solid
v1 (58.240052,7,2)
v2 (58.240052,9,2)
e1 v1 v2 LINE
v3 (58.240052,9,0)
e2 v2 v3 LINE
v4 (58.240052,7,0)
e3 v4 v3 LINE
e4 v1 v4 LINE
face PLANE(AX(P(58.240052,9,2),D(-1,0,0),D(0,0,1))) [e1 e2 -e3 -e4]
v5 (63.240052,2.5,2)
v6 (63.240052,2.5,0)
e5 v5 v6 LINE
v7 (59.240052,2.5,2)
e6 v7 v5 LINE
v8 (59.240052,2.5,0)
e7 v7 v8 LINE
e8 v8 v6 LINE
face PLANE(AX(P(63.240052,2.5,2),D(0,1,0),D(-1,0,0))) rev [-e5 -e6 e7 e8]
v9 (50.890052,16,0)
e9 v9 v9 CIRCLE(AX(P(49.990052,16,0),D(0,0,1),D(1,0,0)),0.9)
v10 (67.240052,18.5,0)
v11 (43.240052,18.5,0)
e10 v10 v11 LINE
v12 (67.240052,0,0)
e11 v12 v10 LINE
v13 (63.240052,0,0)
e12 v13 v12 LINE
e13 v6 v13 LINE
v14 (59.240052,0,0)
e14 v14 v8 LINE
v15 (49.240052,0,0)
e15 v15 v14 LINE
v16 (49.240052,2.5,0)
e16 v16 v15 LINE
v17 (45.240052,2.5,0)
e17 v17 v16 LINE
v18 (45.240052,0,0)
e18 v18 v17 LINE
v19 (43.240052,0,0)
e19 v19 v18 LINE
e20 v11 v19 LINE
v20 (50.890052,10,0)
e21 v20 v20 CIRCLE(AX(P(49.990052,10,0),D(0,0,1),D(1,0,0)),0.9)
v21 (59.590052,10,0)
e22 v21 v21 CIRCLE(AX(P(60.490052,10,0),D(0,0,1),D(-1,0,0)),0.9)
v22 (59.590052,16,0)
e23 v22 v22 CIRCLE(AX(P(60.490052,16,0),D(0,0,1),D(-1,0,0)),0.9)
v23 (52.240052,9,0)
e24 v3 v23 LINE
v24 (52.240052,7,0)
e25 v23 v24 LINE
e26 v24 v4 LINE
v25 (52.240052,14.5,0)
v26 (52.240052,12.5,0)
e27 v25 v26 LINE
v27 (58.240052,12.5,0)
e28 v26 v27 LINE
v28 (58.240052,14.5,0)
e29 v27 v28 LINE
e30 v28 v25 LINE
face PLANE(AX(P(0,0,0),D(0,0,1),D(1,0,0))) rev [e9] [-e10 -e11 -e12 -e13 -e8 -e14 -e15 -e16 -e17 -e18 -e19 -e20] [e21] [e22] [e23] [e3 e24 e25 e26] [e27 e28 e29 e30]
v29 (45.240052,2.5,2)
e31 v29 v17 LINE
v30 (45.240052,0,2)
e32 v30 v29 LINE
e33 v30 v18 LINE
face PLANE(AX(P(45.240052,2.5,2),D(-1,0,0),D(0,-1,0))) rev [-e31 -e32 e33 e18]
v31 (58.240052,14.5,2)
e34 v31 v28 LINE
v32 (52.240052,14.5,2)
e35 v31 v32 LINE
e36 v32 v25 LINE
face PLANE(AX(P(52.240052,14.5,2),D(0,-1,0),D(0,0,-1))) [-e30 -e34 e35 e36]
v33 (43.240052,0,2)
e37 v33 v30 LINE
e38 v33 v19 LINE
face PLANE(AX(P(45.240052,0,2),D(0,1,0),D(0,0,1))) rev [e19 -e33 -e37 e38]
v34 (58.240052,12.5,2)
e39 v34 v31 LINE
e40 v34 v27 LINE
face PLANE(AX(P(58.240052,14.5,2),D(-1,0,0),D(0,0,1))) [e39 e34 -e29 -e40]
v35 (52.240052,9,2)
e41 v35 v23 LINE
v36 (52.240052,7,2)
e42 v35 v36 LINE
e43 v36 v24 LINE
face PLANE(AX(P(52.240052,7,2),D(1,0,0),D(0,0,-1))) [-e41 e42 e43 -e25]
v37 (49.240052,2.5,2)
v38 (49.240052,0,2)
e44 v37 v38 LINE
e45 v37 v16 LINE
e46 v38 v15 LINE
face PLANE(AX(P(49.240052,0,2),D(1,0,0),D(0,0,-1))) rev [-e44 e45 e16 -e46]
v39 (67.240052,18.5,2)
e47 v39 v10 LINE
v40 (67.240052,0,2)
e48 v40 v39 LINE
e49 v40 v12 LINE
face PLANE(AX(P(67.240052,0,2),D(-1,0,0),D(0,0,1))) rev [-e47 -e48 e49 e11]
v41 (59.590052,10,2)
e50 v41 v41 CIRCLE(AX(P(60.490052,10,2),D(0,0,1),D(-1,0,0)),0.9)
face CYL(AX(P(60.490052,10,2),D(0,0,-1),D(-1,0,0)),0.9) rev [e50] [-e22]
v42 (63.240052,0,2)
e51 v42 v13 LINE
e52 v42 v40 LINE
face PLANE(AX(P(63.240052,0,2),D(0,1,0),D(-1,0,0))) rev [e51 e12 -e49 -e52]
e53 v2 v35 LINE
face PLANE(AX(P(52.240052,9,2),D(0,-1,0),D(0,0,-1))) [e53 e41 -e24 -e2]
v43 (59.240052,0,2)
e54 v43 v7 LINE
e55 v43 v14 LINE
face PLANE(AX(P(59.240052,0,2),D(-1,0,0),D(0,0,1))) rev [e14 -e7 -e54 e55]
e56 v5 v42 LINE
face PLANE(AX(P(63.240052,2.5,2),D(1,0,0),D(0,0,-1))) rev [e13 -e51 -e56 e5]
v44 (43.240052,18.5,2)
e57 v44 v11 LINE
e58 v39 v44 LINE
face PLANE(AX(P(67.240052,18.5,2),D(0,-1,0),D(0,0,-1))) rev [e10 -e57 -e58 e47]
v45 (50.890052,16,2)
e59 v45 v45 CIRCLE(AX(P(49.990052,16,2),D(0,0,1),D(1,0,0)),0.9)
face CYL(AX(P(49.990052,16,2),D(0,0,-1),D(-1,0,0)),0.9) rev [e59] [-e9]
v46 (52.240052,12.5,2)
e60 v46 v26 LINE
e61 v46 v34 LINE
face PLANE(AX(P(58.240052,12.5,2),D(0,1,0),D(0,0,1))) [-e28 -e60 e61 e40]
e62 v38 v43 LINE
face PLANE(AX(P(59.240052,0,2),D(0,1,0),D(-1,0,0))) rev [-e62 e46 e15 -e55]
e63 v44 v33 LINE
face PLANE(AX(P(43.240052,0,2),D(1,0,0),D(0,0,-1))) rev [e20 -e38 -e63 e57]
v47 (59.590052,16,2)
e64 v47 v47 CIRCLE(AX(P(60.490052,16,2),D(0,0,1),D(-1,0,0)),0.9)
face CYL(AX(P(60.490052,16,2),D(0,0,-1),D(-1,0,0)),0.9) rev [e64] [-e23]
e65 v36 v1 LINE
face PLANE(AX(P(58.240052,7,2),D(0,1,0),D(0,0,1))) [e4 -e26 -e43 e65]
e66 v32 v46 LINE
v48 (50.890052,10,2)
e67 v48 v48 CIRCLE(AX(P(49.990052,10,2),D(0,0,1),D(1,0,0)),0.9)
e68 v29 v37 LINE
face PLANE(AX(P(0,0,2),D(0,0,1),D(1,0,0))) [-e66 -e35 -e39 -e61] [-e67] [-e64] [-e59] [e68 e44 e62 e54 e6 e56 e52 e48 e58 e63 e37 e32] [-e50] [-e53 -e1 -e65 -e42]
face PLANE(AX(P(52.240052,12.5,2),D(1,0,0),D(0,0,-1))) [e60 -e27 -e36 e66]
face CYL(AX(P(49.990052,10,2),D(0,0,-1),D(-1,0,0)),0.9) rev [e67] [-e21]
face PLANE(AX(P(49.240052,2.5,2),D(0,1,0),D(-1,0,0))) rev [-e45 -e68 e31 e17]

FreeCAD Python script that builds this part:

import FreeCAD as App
import Part
import Sketcher
from FreeCAD import Vector

doc = App.newDocument("Part")
body = doc.addObject("PartDesign::Body", "Body")

# Sketch on XY plane
sketch1 = doc.addObject("Sketcher::SketchObject", "Sketch")
body.addObject(sketch1)
sketch1.AttachmentSupport = (doc.XY_Plane, [""])
sketch1.MapMode = "FlatFace"
sketch1.addGeometry([
    Part.LineSegment(Vector(49.240052, 0, 0), Vector(59.240052, 0, 0)),  # 0
    Part.LineSegment(Vector(59.240052, 0, 0), Vector(59.240052, 2.5, 0)),  # 1
    Part.LineSegment(Vector(59.240052, 2.5, 0), Vector(63.240052, 2.5, 0)),  # 2
    Part.LineSegment(Vector(63.240052, 2.5, 0), Vector(63.240052, 0, 0)),  # 3
    Part.LineSegment(Vector(63.240052, 0, 0), Vector(67.240052, 0, 0)),  # 4
    Part.LineSegment(Vector(67.240052, 0, 0), Vector(67.240052, 18.5, 0)),  # 5
    Part.LineSegment(Vector(67.240052, 18.5, 0), Vector(43.240052, 18.5, 0)),  # 6
    Part.LineSegment(Vector(43.240052, 18.5, 0), Vector(43.240052, 0, 0)),  # 7
    Part.LineSegment(Vector(43.240052, 0, 0), Vector(45.240052, 0, 0)),  # 8
    Part.LineSegment(Vector(45.240052, 0, 0), Vector(45.240052, 2.5, 0)),  # 9
    Part.LineSegment(Vector(45.240052, 2.5, 0), Vector(49.240052, 2.5, 0)),  # 10
    Part.LineSegment(Vector(49.240052, 2.5, 0), Vector(49.240052, 0, 0)),  # 11
    Part.LineSegment(Vector(52.240052, 7, 0), Vector(52.240052, 9, 0)),  # 12
    Part.LineSegment(Vector(52.240052, 9, 0), Vector(58.240052, 9, 0)),  # 13
    Part.LineSegment(Vector(58.240052, 9, 0), Vector(58.240052, 7, 0)),  # 14
    Part.LineSegment(Vector(58.240052, 7, 0), Vector(52.240052, 7, 0)),  # 15
    Part.Circle(Vector(60.490052, 10, 0), Vector(0, 0, 1), 0.9),  # 16
    Part.Circle(Vector(49.990052, 10, 0), Vector(0, 0, 1), 0.9),  # 17
    Part.LineSegment(Vector(52.240052, 12.5, 0), Vector(52.240052, 14.5, 0)),  # 18
    Part.LineSegment(Vector(52.240052, 14.5, 0), Vector(58.240052, 14.5, 0)),  # 19
    Part.LineSegment(Vector(58.240052, 14.5, 0), Vector(58.240052, 12.5, 0)),  # 20
    Part.LineSegment(Vector(58.240052, 12.5, 0), Vector(52.240052, 12.5, 0)),  # 21
    Part.Circle(Vector(60.490052, 16, 0), Vector(0, 0, 1), 0.9),  # 22
    Part.Circle(Vector(49.990052, 16, 0), Vector(0, 0, 1), 0.9),  # 23
], False)
sketch1.addConstraint([
    Sketcher.Constraint("Coincident", 0, 2, 1, 1),
    Sketcher.Constraint("Coincident", 1, 2, 2, 1),
    Sketcher.Constraint("Coincident", 2, 2, 3, 1),
    Sketcher.Constraint("Coincident", 3, 2, 4, 1),
    Sketcher.Constraint("Coincident", 4, 2, 5, 1),
    Sketcher.Constraint("Coincident", 5, 2, 6, 1),
    Sketcher.Constraint("Coincident", 6, 2, 7, 1),
    Sketcher.Constraint("Coincident", 7, 2, 8, 1),
    Sketcher.Constraint("Coincident", 8, 2, 9, 1),
    Sketcher.Constraint("Coincident", 9, 2, 10, 1),
    Sketcher.Constraint("Coincident", 10, 2, 11, 1),
    Sketcher.Constraint("Coincident", 11, 2, 0, 1),
    Sketcher.Constraint("Coincident", 12, 2, 13, 1),
    Sketcher.Constraint("Coincident", 13, 2, 14, 1),
    Sketcher.Constraint("Coincident", 14, 2, 15, 1),
    Sketcher.Constraint("Coincident", 15, 2, 12, 1),
    Sketcher.Constraint("Coincident", 18, 2, 19, 1),
    Sketcher.Constraint("Coincident", 19, 2, 20, 1),
    Sketcher.Constraint("Coincident", 20, 2, 21, 1),
    Sketcher.Constraint("Coincident", 21, 2, 18, 1),
    Sketcher.Constraint("Horizontal", 0),
    Sketcher.Constraint("Vertical", 1),
    Sketcher.Constraint("Horizontal", 2),
    Sketcher.Constraint("Vertical", 3),
    Sketcher.Constraint("Horizontal", 4),
    Sketcher.Constraint("Vertical", 5),
    Sketcher.Constraint("Horizontal", 6),
    Sketcher.Constraint("Vertical", 7),
    Sketcher.Constraint("Horizontal", 8),
    Sketcher.Constraint("Vertical", 9),
    Sketcher.Constraint("Horizontal", 10),
    Sketcher.Constraint("Vertical", 11),
    Sketcher.Constraint("Vertical", 12),
    Sketcher.Constraint("Horizontal", 13),
    Sketcher.Constraint("Vertical", 14),
    Sketcher.Constraint("Horizontal", 15),
    Sketcher.Constraint("Vertical", 18),
    Sketcher.Constraint("Horizontal", 19),
    Sketcher.Constraint("Vertical", 20),
    Sketcher.Constraint("Horizontal", 21),
    Sketcher.Constraint("Equal", 16, 17),
    Sketcher.Constraint("Equal", 17, 22),
    Sketcher.Constraint("Equal", 22, 23),
    Sketcher.Constraint("PointOnObject", 0, 2, -1),
    Sketcher.Constraint("PointOnObject", 3, 2, -1),
    Sketcher.Constraint("PointOnObject", 7, 2, -1),
    Sketcher.Constraint("Horizontal", 16, 3, 17, 3),
    Sketcher.Constraint("Horizontal", 22, 3, 23, 3),
    Sketcher.Constraint("Horizontal", 2, 2, 9, 2),
    Sketcher.Constraint("Vertical", 16, 3, 22, 3),
    Sketcher.Constraint("Vertical", 17, 3, 23, 3),
    Sketcher.Constraint("Vertical", 15, 2, 18, 2),
    Sketcher.Constraint("Vertical", 14, 2, 19, 2),
    Sketcher.Constraint("Equal", 2, 4),
    Sketcher.Constraint("Equal", 4, 10),
    Sketcher.Constraint("Equal", 8, 12),
    Sketcher.Constraint("Equal", 14, 18),
    Sketcher.Constraint("Diameter", 16, 1.8),
    Sketcher.Constraint("DistanceX", 0, 1, 0, 2, 10.0),
    Sketcher.Constraint("DistanceX", 2, 1, 2, 2, 4.0),
    Sketcher.Constraint("DistanceX", 6, 2, 6, 1, 24.0),
    Sketcher.Constraint("DistanceX", 13, 1, 13, 2, 6.0),
    Sketcher.Constraint("DistanceY", 1, 1, 1, 2, 2.5),
    Sketcher.Constraint("DistanceY", 5, 1, 5, 2, 18.5),
    Sketcher.Constraint("DistanceY", -1, 1, 16, 3, 10.0),
    Sketcher.Constraint("DistanceY", -1, 1, 22, 3, 16.0),
    Sketcher.Constraint("DistanceY", -1, 1, 12, 2, 9.0),
    Sketcher.Constraint("DistanceX", 10, 2, 12, 2, 3.0),
    Sketcher.Constraint("DistanceY", -1, 1, 18, 2, 14.5),
    Sketcher.Constraint("DistanceX", 17, 3, 16, 3, 10.5),
    Sketcher.Constraint("DistanceX", 0, 2, 16, 3, 1.25),
    Sketcher.Constraint("DistanceX", -1, 1, 16, 3, 60.490052),
])
pad1 = doc.addObject("PartDesign::Pad", "Pad")
body.addObject(pad1)
pad1.Profile = sketch1
pad1.Length = 2

doc.recompute()
